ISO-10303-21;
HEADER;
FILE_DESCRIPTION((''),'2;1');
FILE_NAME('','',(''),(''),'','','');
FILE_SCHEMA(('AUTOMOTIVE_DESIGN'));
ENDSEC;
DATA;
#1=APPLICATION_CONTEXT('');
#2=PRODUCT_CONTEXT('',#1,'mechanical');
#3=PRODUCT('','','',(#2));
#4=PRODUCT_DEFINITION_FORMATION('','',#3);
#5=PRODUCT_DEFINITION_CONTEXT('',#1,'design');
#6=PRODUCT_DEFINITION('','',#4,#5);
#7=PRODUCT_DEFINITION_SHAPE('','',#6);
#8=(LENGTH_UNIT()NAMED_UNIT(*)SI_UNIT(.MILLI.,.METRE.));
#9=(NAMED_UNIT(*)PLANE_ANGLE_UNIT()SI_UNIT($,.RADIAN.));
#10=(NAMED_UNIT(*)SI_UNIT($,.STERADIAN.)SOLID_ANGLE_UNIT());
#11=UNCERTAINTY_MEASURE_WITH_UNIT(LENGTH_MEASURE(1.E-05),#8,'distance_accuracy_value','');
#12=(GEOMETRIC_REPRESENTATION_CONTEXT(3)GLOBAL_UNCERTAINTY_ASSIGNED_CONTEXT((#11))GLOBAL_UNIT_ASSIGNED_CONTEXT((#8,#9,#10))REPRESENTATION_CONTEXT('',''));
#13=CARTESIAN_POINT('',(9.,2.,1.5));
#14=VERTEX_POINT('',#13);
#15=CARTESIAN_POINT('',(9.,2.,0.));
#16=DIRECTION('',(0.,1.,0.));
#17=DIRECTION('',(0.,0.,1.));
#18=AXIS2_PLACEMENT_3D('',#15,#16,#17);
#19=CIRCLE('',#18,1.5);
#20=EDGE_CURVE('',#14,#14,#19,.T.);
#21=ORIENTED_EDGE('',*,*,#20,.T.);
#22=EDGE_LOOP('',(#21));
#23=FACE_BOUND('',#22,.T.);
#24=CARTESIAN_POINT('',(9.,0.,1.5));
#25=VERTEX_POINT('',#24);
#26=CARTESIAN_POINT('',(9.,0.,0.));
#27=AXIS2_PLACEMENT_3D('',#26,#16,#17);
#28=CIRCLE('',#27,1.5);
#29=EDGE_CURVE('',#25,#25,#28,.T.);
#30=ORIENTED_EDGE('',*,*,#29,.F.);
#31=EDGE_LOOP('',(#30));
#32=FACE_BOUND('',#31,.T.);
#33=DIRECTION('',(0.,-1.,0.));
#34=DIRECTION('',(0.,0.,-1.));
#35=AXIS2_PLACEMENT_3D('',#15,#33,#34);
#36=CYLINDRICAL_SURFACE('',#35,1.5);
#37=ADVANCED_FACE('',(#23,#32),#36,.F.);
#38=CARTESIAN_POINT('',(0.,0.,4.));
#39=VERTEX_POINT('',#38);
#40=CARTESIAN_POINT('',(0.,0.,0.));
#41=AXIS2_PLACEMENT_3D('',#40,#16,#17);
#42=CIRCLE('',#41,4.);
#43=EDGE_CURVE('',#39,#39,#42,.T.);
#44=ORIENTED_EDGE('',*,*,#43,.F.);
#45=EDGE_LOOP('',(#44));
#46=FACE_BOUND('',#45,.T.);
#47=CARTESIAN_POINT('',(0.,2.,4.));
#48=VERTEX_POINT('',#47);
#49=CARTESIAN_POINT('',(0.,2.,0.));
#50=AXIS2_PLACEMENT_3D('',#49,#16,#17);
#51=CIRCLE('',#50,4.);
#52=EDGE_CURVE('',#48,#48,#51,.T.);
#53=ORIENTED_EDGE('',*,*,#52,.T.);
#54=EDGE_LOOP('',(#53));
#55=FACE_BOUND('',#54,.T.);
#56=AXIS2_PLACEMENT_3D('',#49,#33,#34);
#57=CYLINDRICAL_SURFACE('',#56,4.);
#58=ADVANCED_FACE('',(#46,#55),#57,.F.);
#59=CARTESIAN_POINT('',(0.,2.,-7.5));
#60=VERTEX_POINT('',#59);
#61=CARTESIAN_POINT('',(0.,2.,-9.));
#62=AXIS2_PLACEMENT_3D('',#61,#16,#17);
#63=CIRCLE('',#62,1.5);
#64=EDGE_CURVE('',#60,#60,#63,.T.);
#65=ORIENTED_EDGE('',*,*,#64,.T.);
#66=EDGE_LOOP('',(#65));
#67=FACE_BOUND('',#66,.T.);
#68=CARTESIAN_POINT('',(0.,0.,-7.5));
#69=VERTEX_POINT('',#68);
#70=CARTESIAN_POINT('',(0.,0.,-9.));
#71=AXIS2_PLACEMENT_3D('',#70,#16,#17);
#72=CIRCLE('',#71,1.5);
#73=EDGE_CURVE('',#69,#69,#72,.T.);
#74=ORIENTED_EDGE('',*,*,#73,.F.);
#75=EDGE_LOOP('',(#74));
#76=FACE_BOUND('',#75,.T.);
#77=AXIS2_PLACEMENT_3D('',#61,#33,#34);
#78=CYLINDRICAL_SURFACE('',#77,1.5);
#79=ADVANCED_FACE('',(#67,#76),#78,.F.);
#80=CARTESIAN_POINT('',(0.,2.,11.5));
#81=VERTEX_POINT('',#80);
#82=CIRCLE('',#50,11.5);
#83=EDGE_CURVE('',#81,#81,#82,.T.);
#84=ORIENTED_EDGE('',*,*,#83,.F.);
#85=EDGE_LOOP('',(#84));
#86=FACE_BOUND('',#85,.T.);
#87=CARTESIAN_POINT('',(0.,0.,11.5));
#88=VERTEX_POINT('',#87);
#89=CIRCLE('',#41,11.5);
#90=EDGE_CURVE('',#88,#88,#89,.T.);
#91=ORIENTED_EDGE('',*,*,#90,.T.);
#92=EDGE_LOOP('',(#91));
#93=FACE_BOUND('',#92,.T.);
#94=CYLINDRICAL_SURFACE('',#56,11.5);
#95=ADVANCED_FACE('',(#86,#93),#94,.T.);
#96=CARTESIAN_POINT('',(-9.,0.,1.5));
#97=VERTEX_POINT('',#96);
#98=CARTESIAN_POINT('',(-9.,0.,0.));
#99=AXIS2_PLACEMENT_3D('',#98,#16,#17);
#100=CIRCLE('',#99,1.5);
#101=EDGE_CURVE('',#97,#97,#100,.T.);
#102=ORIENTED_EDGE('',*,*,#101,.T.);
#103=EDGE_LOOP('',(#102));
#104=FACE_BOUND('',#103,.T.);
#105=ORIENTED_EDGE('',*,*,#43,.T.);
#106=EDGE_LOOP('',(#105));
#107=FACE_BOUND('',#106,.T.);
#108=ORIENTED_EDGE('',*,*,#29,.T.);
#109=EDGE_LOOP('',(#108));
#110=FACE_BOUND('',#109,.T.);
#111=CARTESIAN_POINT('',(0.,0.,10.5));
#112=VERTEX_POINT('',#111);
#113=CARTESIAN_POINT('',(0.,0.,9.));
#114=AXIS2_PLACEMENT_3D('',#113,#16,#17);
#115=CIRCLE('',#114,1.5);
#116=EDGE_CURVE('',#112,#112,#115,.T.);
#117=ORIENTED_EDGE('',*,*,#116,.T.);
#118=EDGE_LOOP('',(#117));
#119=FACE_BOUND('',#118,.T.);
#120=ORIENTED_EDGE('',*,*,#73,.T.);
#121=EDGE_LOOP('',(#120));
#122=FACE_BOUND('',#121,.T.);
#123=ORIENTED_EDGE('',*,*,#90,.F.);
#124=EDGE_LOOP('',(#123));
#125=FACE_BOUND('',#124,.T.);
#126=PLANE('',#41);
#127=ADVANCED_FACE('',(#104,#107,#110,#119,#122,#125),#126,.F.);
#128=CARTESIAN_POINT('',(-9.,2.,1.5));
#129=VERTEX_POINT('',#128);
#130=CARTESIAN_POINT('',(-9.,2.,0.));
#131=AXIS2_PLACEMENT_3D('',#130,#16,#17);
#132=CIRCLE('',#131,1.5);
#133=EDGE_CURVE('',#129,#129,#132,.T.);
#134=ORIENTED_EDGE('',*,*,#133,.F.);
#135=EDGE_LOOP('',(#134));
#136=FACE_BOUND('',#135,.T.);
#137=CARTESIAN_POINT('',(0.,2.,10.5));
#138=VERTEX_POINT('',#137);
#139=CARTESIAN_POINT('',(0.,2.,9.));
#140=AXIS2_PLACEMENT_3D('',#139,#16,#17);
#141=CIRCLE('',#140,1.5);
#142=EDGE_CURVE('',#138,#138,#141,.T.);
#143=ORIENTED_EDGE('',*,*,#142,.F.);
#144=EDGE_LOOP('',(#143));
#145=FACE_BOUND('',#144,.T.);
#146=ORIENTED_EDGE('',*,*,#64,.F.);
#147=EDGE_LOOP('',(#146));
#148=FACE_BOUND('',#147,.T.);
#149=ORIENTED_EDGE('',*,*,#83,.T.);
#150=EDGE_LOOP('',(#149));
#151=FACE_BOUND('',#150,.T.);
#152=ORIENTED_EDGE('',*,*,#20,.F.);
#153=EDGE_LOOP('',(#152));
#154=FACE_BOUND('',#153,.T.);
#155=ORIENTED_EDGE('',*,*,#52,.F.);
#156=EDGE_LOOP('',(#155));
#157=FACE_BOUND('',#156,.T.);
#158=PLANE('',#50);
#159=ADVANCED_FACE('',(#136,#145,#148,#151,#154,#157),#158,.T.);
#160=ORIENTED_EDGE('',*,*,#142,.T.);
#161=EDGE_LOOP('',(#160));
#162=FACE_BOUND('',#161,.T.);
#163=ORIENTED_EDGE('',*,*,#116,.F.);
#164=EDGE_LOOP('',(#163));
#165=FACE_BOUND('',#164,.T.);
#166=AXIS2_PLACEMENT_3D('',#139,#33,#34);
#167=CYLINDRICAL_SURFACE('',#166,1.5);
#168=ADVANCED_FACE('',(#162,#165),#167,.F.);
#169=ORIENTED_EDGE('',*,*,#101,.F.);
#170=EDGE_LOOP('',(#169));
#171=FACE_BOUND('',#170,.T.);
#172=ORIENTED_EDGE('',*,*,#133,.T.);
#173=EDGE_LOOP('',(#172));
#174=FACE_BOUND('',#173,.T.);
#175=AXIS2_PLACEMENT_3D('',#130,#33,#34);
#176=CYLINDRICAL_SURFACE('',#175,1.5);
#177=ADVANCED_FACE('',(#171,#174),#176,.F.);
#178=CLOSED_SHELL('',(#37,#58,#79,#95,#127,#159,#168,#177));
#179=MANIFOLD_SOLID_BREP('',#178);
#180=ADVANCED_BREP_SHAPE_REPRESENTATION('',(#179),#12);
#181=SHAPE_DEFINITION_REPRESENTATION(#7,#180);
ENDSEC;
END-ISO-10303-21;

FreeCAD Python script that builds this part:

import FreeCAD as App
import Part
import Sketcher
Q = App.Units.Quantity

doc = App.newDocument("Part")
body = doc.addObject("PartDesign::Body", "Body")

sketch1 = body.newObject("Sketcher::SketchObject", "Sketch")
sketch1.AttachmentSupport = (doc.getObject("XZ_Plane"), [""])
sketch1.MapMode = "FlatFace"
sketch1.addGeometry([
    Part.Circle(App.Vector(0, 0, 0), App.Vector(0, 0, 1), 11.5),
    Part.Circle(App.Vector(0, -9, 0), App.Vector(0, 0, 1), 1.5),
    Part.Circle(App.Vector(-9, 0, 0), App.Vector(0, 0, 1), 1.5),
    Part.Circle(App.Vector(9, 0, 0), App.Vector(0, 0, 1), 1.5),
    Part.Circle(App.Vector(0, 0, 0), App.Vector(0, 0, 1), 4),
    Part.Circle(App.Vector(0, 9, 0), App.Vector(0, 0, 1), 1.5),
], False)
sketch1.addConstraint([
    Sketcher.Constraint("Coincident", 0, 3, -1, 1),
    Sketcher.Constraint("Coincident", 4, 3, -1, 1),
    Sketcher.Constraint("Equal", 1, 2),
    Sketcher.Constraint("Equal", 2, 3),
    Sketcher.Constraint("Equal", 3, 5),
    Sketcher.Constraint("Symmetric", 2, 3, 3, 3, -1, 1),
    Sketcher.Constraint("Symmetric", 1, 3, 5, 3, -1, 1),
    Sketcher.Constraint("PointOnObject", 1, 3, -2),
    Sketcher.Constraint("PointOnObject", 2, 3, -1),
    Sketcher.Constraint("Diameter", 0, Q("23 mm")),
    Sketcher.Constraint("Diameter", 1, Q("3 mm")),
    Sketcher.Constraint("Diameter", 4, Q("8 mm")),
    Sketcher.Constraint("DistanceY", 1, 3, -1, 1, Q("9 mm")),
    Sketcher.Constraint("DistanceX", 2, 3, -1, 1, Q("9 mm")),
])
pad1 = body.newObject("PartDesign::Pad", "Pad")
pad1.Profile = sketch1
pad1.Length = 2
pad1.Reversed = True

doc.recompute()
